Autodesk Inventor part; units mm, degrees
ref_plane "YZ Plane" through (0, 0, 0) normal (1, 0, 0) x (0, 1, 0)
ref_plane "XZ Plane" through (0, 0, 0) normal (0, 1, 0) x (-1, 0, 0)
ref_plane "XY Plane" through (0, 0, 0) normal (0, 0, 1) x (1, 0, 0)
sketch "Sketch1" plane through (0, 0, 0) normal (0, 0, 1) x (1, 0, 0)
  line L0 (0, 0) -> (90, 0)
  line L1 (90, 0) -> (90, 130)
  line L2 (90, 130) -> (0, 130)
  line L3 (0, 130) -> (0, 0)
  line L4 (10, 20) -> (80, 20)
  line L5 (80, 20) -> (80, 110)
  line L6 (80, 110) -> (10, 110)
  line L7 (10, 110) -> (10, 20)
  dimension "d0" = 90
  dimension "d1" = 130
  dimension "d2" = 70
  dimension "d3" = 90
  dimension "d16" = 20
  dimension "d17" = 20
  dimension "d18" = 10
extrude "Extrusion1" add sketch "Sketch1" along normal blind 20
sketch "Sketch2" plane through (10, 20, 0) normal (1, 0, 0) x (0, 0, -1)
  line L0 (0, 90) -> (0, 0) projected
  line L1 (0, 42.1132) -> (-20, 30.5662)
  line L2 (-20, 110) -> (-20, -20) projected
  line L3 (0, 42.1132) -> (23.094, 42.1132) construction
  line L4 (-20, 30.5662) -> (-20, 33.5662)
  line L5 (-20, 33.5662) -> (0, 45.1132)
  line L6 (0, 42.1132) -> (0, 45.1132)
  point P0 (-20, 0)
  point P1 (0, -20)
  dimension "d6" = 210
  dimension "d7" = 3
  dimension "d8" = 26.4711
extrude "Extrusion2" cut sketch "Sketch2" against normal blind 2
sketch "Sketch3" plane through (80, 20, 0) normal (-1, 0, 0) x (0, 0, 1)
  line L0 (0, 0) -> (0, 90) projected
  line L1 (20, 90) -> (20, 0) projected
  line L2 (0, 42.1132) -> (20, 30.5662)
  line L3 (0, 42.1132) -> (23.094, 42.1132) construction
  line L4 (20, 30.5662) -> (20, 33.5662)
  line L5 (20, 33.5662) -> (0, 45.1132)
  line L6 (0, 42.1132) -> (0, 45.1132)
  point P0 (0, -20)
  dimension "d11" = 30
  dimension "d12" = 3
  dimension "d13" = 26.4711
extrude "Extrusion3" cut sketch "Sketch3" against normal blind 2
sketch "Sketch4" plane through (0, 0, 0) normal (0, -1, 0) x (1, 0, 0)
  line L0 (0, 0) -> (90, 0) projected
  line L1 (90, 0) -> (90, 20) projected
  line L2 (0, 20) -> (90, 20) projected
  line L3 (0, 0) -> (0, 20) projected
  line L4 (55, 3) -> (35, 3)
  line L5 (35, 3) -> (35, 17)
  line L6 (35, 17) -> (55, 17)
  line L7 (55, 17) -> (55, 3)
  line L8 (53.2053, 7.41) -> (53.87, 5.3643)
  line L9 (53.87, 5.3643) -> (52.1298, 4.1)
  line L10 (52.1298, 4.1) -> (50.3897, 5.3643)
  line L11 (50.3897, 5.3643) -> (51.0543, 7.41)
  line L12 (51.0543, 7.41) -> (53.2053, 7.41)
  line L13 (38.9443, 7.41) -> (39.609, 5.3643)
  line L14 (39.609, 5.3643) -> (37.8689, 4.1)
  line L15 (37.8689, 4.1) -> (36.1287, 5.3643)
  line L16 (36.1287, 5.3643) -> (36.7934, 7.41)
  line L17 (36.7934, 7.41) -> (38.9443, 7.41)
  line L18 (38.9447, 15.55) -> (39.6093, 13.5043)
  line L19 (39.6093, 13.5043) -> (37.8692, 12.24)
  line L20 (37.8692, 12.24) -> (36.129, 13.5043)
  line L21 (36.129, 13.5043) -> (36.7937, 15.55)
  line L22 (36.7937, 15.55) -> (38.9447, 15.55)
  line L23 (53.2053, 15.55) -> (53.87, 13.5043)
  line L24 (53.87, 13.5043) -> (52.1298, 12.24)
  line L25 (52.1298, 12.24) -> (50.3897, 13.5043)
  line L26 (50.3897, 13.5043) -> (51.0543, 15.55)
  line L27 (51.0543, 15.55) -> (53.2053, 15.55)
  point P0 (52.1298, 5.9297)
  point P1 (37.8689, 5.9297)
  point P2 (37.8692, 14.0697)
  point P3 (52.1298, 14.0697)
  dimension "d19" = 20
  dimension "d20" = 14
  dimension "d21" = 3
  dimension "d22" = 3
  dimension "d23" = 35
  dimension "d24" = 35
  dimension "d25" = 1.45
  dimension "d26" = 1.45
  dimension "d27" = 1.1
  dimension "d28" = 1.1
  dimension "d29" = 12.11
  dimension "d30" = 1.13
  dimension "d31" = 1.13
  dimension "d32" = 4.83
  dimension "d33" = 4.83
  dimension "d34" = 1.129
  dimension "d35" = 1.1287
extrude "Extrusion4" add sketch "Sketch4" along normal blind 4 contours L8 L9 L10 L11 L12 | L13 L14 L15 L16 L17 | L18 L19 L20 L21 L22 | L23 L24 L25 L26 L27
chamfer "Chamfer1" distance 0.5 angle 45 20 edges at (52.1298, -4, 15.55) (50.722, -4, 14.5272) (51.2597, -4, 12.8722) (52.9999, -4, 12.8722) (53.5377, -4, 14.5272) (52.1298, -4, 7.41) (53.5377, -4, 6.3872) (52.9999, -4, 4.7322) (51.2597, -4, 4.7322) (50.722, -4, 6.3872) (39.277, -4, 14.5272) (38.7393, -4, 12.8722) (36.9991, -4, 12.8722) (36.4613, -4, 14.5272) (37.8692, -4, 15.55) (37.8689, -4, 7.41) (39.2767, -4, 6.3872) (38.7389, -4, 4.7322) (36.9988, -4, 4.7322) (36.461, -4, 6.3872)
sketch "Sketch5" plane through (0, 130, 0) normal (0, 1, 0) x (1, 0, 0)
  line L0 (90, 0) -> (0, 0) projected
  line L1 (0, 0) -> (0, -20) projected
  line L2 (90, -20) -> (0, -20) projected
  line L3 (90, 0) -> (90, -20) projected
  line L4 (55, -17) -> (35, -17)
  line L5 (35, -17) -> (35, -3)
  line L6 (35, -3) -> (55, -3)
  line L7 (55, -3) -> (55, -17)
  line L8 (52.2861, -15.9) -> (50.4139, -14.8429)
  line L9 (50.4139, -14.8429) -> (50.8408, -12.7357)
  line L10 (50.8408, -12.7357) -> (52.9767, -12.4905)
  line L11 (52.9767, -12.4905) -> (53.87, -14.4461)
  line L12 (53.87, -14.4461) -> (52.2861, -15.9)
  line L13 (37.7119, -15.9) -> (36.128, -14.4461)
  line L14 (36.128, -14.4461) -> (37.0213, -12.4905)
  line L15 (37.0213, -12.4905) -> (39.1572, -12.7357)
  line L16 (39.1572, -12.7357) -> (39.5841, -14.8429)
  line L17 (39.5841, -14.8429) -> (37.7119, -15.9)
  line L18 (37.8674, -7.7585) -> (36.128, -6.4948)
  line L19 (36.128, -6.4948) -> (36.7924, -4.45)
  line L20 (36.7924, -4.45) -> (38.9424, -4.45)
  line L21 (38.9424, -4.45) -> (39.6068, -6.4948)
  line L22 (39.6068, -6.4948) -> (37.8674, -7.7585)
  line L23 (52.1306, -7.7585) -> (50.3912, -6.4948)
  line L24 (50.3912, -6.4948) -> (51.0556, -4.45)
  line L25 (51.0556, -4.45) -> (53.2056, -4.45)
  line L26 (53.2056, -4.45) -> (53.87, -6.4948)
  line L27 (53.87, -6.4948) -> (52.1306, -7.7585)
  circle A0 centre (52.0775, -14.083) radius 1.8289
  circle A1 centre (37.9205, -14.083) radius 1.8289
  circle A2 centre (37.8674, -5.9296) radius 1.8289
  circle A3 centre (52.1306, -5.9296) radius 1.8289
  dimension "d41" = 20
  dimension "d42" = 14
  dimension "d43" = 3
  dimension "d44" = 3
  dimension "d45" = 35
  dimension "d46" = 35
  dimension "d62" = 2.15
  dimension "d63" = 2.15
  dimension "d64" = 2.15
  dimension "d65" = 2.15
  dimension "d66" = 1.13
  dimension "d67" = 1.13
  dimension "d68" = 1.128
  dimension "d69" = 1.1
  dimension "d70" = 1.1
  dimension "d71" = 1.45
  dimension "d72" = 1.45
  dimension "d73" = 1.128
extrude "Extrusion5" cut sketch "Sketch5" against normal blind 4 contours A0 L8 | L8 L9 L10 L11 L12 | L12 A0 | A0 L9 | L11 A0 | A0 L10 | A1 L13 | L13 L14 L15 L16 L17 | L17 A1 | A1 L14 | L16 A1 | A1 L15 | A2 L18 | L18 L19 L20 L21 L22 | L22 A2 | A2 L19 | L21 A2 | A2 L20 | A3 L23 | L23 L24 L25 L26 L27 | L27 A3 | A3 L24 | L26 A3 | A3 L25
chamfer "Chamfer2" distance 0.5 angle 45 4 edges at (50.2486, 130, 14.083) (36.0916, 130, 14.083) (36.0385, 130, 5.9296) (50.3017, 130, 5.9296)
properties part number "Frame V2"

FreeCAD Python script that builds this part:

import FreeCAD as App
import Part
import Sketcher
from FreeCAD import Vector
Q = App.Units.Quantity


def edges_at(feature, points):
    """Names of the edges that pass closest to the given points."""
    edges = feature.Shape.Edges
    near = lambda p: min(range(len(edges)), key=lambda i: edges[i].distToShape(Part.Vertex(*p))[0])
    return sorted({f"Edge{near(p) + 1}" for p in points})

doc = App.newDocument("Part")
body = doc.addObject("PartDesign::Body", "Body")

# Sketch on XY plane
sketch1 = doc.addObject("Sketcher::SketchObject", "Sketch")
body.addObject(sketch1)
sketch1.AttachmentSupport = (doc.XY_Plane, [""])
sketch1.MapMode = "FlatFace"
sketch1.addGeometry([
    Part.LineSegment(Vector(0, 130, 0), Vector(0, 0, 0)),  # 0
    Part.LineSegment(Vector(0, 0, 0), Vector(90, 0, 0)),  # 1
    Part.LineSegment(Vector(90, 0, 0), Vector(90, 130, 0)),  # 2
    Part.LineSegment(Vector(90, 130, 0), Vector(0, 130, 0)),  # 3
    Part.LineSegment(Vector(80, 20, 0), Vector(10, 20, 0)),  # 4
    Part.LineSegment(Vector(10, 20, 0), Vector(10, 110, 0)),  # 5
    Part.LineSegment(Vector(10, 110, 0), Vector(80, 110, 0)),  # 6
    Part.LineSegment(Vector(80, 110, 0), Vector(80, 20, 0)),  # 7
], False)
sketch1.addConstraint([
    Sketcher.Constraint("Coincident", 0, 2, 1, 1),
    Sketcher.Constraint("Coincident", 1, 2, 2, 1),
    Sketcher.Constraint("Coincident", 2, 2, 3, 1),
    Sketcher.Constraint("Coincident", 3, 2, 0, 1),
    Sketcher.Constraint("Coincident", 4, 2, 5, 1),
    Sketcher.Constraint("Coincident", 5, 2, 6, 1),
    Sketcher.Constraint("Coincident", 6, 2, 7, 1),
    Sketcher.Constraint("Coincident", 7, 2, 4, 1),
    Sketcher.Constraint("Vertical", 0),
    Sketcher.Constraint("Horizontal", 1),
    Sketcher.Constraint("Vertical", 2),
    Sketcher.Constraint("Horizontal", 3),
    Sketcher.Constraint("Horizontal", 4),
    Sketcher.Constraint("Vertical", 5),
    Sketcher.Constraint("Horizontal", 6),
    Sketcher.Constraint("Vertical", 7),
    Sketcher.Constraint("Coincident", 0, 2, -1, 1),
    Sketcher.Constraint("Equal", 3, 5),
    Sketcher.Constraint("DistanceX", 1, 1, 1, 2, Q("90 mm")),
    Sketcher.Constraint("DistanceX", 4, 2, 4, 1, Q("70 mm")),
    Sketcher.Constraint("DistanceY", 0, 2, 0, 1, Q("130 mm")),
    Sketcher.Constraint("DistanceX", -1, 1, 4, 2, Q("10 mm")),
    Sketcher.Constraint("DistanceY", -1, 1, 4, 2, Q("20 mm")),
])
pad1 = doc.addObject("PartDesign::Pad", "Pad")
body.addObject(pad1)
pad1.Profile = sketch1
pad1.Length = 20

# Sketch on YZ plane
sketch2 = doc.addObject("Sketcher::SketchObject", "Sketch001")
body.addObject(sketch2)
sketch2.AttachmentSupport = (doc.YZ_Plane, [""])
sketch2.MapMode = "FlatFace"
sketch2.AttachmentOffset = App.Placement(Vector(0, 0, 10), App.Rotation())
sketch2.addGeometry([
    Part.LineSegment(Vector(62.1132, 0, 0), Vector(65.1132, 0, 0)),
    Part.LineSegment(Vector(65.1132, 0, 0), Vector(53.5662, 20, 0)),
    Part.LineSegment(Vector(53.5662, 20, 0), Vector(50.5662, 20, 0)),
    Part.LineSegment(Vector(50.5662, 20, 0), Vector(62.1132, 0, 0)),
], False)
sketch2.addConstraint([
    Sketcher.Constraint("Coincident", 0, 2, 1, 1),
    Sketcher.Constraint("Coincident", 1, 2, 2, 1),
    Sketcher.Constraint("Coincident", 2, 2, 3, 1),
    Sketcher.Constraint("Coincident", 3, 2, 0, 1),
    Sketcher.Constraint("Horizontal", 0),
    Sketcher.Constraint("Horizontal", 2),
    Sketcher.Constraint("PointOnObject", 0, 2, -1),
    Sketcher.Constraint("Parallel", 1, 3),
    Sketcher.Constraint("DistanceX", 0, 1, 0, 2, Q("3 mm")),
    Sketcher.Constraint("Angle", 1, Q("120 deg")),
    Sketcher.Constraint("DistanceY", -1, 1, 1, 2, Q("20 mm")),
    Sketcher.Constraint("DistanceX", -1, 1, 0, 2, Q("65.1132 mm")),
])
pocket1 = doc.addObject("PartDesign::Pocket", "Pocket")
body.addObject(pocket1)
pocket1.Profile = sketch2
pocket1.Length = 2

# Sketch on YZ plane
sketch3 = doc.addObject("Sketcher::SketchObject", "Sketch002")
body.addObject(sketch3)
sketch3.AttachmentSupport = (doc.YZ_Plane, [""])
sketch3.MapMode = "FlatFace"
sketch3.AttachmentOffset = App.Placement(Vector(0, 0, 80), App.Rotation())
sketch3.addGeometry([
    Part.LineSegment(Vector(65.1132, 0, 0), Vector(62.1132, 0, 0)),
    Part.LineSegment(Vector(62.1132, 0, 0), Vector(50.5662, 20, 0)),
    Part.LineSegment(Vector(50.5662, 20, 0), Vector(53.5662, 20, 0)),
    Part.LineSegment(Vector(53.5662, 20, 0), Vector(65.1132, 0, 0)),
], False)
sketch3.addConstraint([
    Sketcher.Constraint("Coincident", 0, 2, 1, 1),
    Sketcher.Constraint("Coincident", 1, 2, 2, 1),
    Sketcher.Constraint("Coincident", 2, 2, 3, 1),
    Sketcher.Constraint("Coincident", 3, 2, 0, 1),
    Sketcher.Constraint("Horizontal", 0),
    Sketcher.Constraint("Horizontal", 2),
    Sketcher.Constraint("PointOnObject", 0, 2, -1),
    Sketcher.Constraint("Parallel", 1, 3),
    Sketcher.Constraint("DistanceX", 0, 2, 0, 1, Q("3 mm")),
    Sketcher.Constraint("Angle", 1, Q("120 deg")),
    Sketcher.Constraint("DistanceY", -1, 1, 1, 2, Q("20 mm")),
    Sketcher.Constraint("DistanceX", -1, 1, 0, 2, Q("62.1132 mm")),
])
pocket2 = doc.addObject("PartDesign::Pocket", "Pocket001")
body.addObject(pocket2)
pocket2.Profile = sketch3
pocket2.Length = 2
pocket2.Reversed = True

# Sketch on XZ plane
sketch4 = doc.addObject("Sketcher::SketchObject", "Sketch003")
body.addObject(sketch4)
sketch4.AttachmentSupport = (doc.XZ_Plane, [""])
sketch4.MapMode = "FlatFace"
sketch4.addGeometry([
    Part.LineSegment(Vector(53.87, 5.3643, 0), Vector(53.2053, 7.41, 0)),  # 0
    Part.LineSegment(Vector(53.2053, 7.41, 0), Vector(51.0543, 7.41, 0)),  # 1
    Part.LineSegment(Vector(51.0543, 7.41, 0), Vector(50.3897, 5.3643, 0)),  # 2
    Part.LineSegment(Vector(50.3897, 5.3643, 0), Vector(52.1298, 4.1, 0)),  # 3
    Part.LineSegment(Vector(52.1298, 4.1, 0), Vector(53.87, 5.3643, 0)),  # 4
    Part.LineSegment(Vector(39.609, 5.3643, 0), Vector(38.9443, 7.41, 0)),  # 5
    Part.LineSegment(Vector(38.9443, 7.41, 0), Vector(36.7934, 7.41, 0)),  # 6
    Part.LineSegment(Vector(36.7934, 7.41, 0), Vector(36.1287, 5.3643, 0)),  # 7
    Part.LineSegment(Vector(36.1287, 5.3643, 0), Vector(37.8689, 4.1, 0)),  # 8
    Part.LineSegment(Vector(37.8689, 4.1, 0), Vector(39.609, 5.3643, 0)),  # 9
    Part.LineSegment(Vector(39.6093, 13.5043, 0), Vector(38.9447, 15.55, 0)),  # 10
    Part.LineSegment(Vector(38.9447, 15.55, 0), Vector(36.7937, 15.55, 0)),  # 11
    Part.LineSegment(Vector(36.7937, 15.55, 0), Vector(36.129, 13.5043, 0)),  # 12
    Part.LineSegment(Vector(36.129, 13.5043, 0), Vector(37.8692, 12.24, 0)),  # 13
    Part.LineSegment(Vector(37.8692, 12.24, 0), Vector(39.6093, 13.5043, 0)),  # 14
    Part.LineSegment(Vector(53.87, 13.5043, 0), Vector(53.2053, 15.55, 0)),  # 15
    Part.LineSegment(Vector(53.2053, 15.55, 0), Vector(51.0543, 15.55, 0)),  # 16
    Part.LineSegment(Vector(51.0543, 15.55, 0), Vector(50.3897, 13.5043, 0)),  # 17
    Part.LineSegment(Vector(50.3897, 13.5043, 0), Vector(52.1298, 12.24, 0)),  # 18
    Part.LineSegment(Vector(52.1298, 12.24, 0), Vector(53.87, 13.5043, 0)),  # 19
], False)
sketch4.addConstraint([
    Sketcher.Constraint("Coincident", 0, 2, 1, 1),
    Sketcher.Constraint("Coincident", 1, 2, 2, 1),
    Sketcher.Constraint("Coincident", 2, 2, 3, 1),
    Sketcher.Constraint("Coincident", 3, 2, 4, 1),
    Sketcher.Constraint("Coincident", 4, 2, 0, 1),
    Sketcher.Constraint("Coincident", 5, 2, 6, 1),
    Sketcher.Constraint("Coincident", 6, 2, 7, 1),
    Sketcher.Constraint("Coincident", 7, 2, 8, 1),
    Sketcher.Constraint("Coincident", 8, 2, 9, 1),
    Sketcher.Constraint("Coincident", 9, 2, 5, 1),
    Sketcher.Constraint("Coincident", 10, 2, 11, 1),
    Sketcher.Constraint("Coincident", 11, 2, 12, 1),
    Sketcher.Constraint("Coincident", 12, 2, 13, 1),
    Sketcher.Constraint("Coincident", 13, 2, 14, 1),
    Sketcher.Constraint("Coincident", 14, 2, 10, 1),
    Sketcher.Constraint("Coincident", 15, 2, 16, 1),
    Sketcher.Constraint("Coincident", 16, 2, 17, 1),
    Sketcher.Constraint("Coincident", 17, 2, 18, 1),
    Sketcher.Constraint("Coincident", 18, 2, 19, 1),
    Sketcher.Constraint("Coincident", 19, 2, 15, 1),
    Sketcher.Constraint("Horizontal", 1),
    Sketcher.Constraint("Horizontal", 6),
    Sketcher.Constraint("Horizontal", 11),
    Sketcher.Constraint("Horizontal", 16),
    Sketcher.Constraint("Parallel", 0, 5),
    Sketcher.Constraint("Parallel", 2, 7),
    Sketcher.Constraint("Parallel", 3, 8),
    Sketcher.Constraint("Parallel", 4, 9),
    Sketcher.Constraint("Parallel", 5, 10),
    Sketcher.Constraint("Parallel", 7, 12),
    Sketcher.Constraint("Parallel", 8, 13),
    Sketcher.Constraint("Parallel", 9, 14),
    Sketcher.Constraint("Parallel", 10, 15),
    Sketcher.Constraint("Parallel", 12, 17),
    Sketcher.Constraint("Parallel", 13, 18),
    Sketcher.Constraint("Parallel", 14, 19),
    Sketcher.Constraint("Horizontal", 2, 2, 4, 2),
    Sketcher.Constraint("Horizontal", 1, 2, 5, 2),
    Sketcher.Constraint("Horizontal", 4, 2, 7, 2),
    Sketcher.Constraint("Horizontal", 3, 2, 8, 2),
    Sketcher.Constraint("Horizontal", 7, 2, 9, 2),
    Sketcher.Constraint("Horizontal", 12, 2, 14, 2),
    Sketcher.Constraint("Horizontal", 11, 2, 15, 2),
    Sketcher.Constraint("Horizontal", 14, 2, 17, 2),
    Sketcher.Constraint("Horizontal", 13, 2, 18, 2),
    Sketcher.Constraint("Horizontal", 17, 2, 19, 2),
    Sketcher.Constraint("Vertical", 0, 2, 15, 2),
    Sketcher.Constraint("Vertical", 1, 2, 16, 2),
    Sketcher.Constraint("Vertical", 2, 2, 17, 2),
    Sketcher.Constraint("Equal", 0, 2),
    Sketcher.Constraint("Equal", 2, 3),
    Sketcher.Constraint("Equal", 3, 4),
    Sketcher.Constraint("Angle", 0, Q("108.0003 deg")),
    Sketcher.Constraint("Angle", 3, Q("-36.001 deg")),
    Sketcher.Constraint("DistanceX", 5, 2, 1, 2, Q("12.11 mm")),
    Sketcher.Constraint("DistanceY", 5, 2, 13, 2, Q("4.83 mm")),
    Sketcher.Constraint("DistanceY", -1, 1, 3, 2, Q("4.1 mm")),
    Sketcher.Constraint("DistanceX", 1, 2, 1, 1, Q("2.151 mm")),
    Sketcher.Constraint("DistanceX", -1, 1, 4, 2, Q("53.87 mm")),
    Sketcher.Constraint("DistanceX", -1, 1, 12, 2, Q("36.129 mm")),
])
pad2 = doc.addObject("PartDesign::Pad", "Pad001")
body.addObject(pad2)
pad2.Profile = sketch4
pad2.Length = 4
doc.recompute()

chamfer = doc.addObject("PartDesign::Chamfer", "Chamfer")
body.addObject(chamfer)
chamfer.Base = (pad2, edges_at(pad2, [
    (52.13, -4, 15.55),
    (50.722, -4, 14.527),
    (51.26, -4, 12.872),
    (53, -4, 12.872),
    (53.538, -4, 14.527),
    (52.13, -4, 7.41),
    (53.538, -4, 6.387),
    (53, -4, 4.732),
    (51.26, -4, 4.732),
    (50.722, -4, 6.387),
    (39.277, -4, 14.527),
    (38.739, -4, 12.872),
    (36.999, -4, 12.872),
    (36.461, -4, 14.527),
    (37.869, -4, 15.55),
    (37.869, -4, 7.41),
    (39.277, -4, 6.387),
    (38.739, -4, 4.732),
    (36.999, -4, 4.732),
    (36.461, -4, 6.387),
]))
chamfer.Size = 0.5

# Sketch on XZ plane
sketch5 = doc.addObject("Sketcher::SketchObject", "Sketch004")
body.addObject(sketch5)
sketch5.AttachmentSupport = (doc.XZ_Plane, [""])
sketch5.MapMode = "FlatFace"
sketch5.AttachmentOffset = App.Placement(Vector(0, 0, -130), App.Rotation())
sketch5.addGeometry([
    Part.Circle(Vector(52.0775, 14.083, 0), Vector(0, 0, 1), 1.8289),
    Part.Circle(Vector(37.9205, 14.083, 0), Vector(0, 0, 1), 1.8289),
    Part.Circle(Vector(37.8674, 5.9296, 0), Vector(0, 0, 1), 1.8289),
    Part.Circle(Vector(52.1306, 5.9296, 0), Vector(0, 0, 1), 1.8289),
], False)
sketch5.addConstraint([
    Sketcher.Constraint("Equal", 0, 1),
    Sketcher.Constraint("Equal", 1, 2),
    Sketcher.Constraint("Equal", 2, 3),
    Sketcher.Constraint("Horizontal", 0, 3, 1, 3),
    Sketcher.Constraint("Horizontal", 2, 3, 3, 3),
    Sketcher.Constraint("Diameter", 0, Q("3.6578 mm")),
    Sketcher.Constraint("DistanceX", 2, 3, 0, 3, Q("14.21 mm")),
    Sketcher.Constraint("DistanceX", 1, 3, 3, 3, Q("14.21 mm")),
    Sketcher.Constraint("DistanceY", -1, 1, 0, 3, Q("14.083 mm")),
    Sketcher.Constraint("DistanceX", 1, 3, 0, 3, Q("14.157 mm")),
    Sketcher.Constraint("DistanceX", -1, 1, 0, 3, Q("52.0775 mm")),
    Sketcher.Constraint("DistanceY", -1, 1, 2, 3, Q("5.9296 mm")),
])
pocket3 = doc.addObject("PartDesign::Pocket", "Pocket002")
body.addObject(pocket3)
pocket3.Profile = sketch5
pocket3.Length = 4
pocket3.Reversed = True
doc.recompute()

chamfer2 = doc.addObject("PartDesign::Chamfer", "Chamfer001")
body.addObject(chamfer2)
chamfer2.Base = (pocket3, edges_at(pocket3, [
    (50.249, 130, 14.083),
    (36.092, 130, 14.083),
    (36.038, 130, 5.93),
    (50.302, 130, 5.93),
]))
chamfer2.Size = 0.5

doc.recompute()
